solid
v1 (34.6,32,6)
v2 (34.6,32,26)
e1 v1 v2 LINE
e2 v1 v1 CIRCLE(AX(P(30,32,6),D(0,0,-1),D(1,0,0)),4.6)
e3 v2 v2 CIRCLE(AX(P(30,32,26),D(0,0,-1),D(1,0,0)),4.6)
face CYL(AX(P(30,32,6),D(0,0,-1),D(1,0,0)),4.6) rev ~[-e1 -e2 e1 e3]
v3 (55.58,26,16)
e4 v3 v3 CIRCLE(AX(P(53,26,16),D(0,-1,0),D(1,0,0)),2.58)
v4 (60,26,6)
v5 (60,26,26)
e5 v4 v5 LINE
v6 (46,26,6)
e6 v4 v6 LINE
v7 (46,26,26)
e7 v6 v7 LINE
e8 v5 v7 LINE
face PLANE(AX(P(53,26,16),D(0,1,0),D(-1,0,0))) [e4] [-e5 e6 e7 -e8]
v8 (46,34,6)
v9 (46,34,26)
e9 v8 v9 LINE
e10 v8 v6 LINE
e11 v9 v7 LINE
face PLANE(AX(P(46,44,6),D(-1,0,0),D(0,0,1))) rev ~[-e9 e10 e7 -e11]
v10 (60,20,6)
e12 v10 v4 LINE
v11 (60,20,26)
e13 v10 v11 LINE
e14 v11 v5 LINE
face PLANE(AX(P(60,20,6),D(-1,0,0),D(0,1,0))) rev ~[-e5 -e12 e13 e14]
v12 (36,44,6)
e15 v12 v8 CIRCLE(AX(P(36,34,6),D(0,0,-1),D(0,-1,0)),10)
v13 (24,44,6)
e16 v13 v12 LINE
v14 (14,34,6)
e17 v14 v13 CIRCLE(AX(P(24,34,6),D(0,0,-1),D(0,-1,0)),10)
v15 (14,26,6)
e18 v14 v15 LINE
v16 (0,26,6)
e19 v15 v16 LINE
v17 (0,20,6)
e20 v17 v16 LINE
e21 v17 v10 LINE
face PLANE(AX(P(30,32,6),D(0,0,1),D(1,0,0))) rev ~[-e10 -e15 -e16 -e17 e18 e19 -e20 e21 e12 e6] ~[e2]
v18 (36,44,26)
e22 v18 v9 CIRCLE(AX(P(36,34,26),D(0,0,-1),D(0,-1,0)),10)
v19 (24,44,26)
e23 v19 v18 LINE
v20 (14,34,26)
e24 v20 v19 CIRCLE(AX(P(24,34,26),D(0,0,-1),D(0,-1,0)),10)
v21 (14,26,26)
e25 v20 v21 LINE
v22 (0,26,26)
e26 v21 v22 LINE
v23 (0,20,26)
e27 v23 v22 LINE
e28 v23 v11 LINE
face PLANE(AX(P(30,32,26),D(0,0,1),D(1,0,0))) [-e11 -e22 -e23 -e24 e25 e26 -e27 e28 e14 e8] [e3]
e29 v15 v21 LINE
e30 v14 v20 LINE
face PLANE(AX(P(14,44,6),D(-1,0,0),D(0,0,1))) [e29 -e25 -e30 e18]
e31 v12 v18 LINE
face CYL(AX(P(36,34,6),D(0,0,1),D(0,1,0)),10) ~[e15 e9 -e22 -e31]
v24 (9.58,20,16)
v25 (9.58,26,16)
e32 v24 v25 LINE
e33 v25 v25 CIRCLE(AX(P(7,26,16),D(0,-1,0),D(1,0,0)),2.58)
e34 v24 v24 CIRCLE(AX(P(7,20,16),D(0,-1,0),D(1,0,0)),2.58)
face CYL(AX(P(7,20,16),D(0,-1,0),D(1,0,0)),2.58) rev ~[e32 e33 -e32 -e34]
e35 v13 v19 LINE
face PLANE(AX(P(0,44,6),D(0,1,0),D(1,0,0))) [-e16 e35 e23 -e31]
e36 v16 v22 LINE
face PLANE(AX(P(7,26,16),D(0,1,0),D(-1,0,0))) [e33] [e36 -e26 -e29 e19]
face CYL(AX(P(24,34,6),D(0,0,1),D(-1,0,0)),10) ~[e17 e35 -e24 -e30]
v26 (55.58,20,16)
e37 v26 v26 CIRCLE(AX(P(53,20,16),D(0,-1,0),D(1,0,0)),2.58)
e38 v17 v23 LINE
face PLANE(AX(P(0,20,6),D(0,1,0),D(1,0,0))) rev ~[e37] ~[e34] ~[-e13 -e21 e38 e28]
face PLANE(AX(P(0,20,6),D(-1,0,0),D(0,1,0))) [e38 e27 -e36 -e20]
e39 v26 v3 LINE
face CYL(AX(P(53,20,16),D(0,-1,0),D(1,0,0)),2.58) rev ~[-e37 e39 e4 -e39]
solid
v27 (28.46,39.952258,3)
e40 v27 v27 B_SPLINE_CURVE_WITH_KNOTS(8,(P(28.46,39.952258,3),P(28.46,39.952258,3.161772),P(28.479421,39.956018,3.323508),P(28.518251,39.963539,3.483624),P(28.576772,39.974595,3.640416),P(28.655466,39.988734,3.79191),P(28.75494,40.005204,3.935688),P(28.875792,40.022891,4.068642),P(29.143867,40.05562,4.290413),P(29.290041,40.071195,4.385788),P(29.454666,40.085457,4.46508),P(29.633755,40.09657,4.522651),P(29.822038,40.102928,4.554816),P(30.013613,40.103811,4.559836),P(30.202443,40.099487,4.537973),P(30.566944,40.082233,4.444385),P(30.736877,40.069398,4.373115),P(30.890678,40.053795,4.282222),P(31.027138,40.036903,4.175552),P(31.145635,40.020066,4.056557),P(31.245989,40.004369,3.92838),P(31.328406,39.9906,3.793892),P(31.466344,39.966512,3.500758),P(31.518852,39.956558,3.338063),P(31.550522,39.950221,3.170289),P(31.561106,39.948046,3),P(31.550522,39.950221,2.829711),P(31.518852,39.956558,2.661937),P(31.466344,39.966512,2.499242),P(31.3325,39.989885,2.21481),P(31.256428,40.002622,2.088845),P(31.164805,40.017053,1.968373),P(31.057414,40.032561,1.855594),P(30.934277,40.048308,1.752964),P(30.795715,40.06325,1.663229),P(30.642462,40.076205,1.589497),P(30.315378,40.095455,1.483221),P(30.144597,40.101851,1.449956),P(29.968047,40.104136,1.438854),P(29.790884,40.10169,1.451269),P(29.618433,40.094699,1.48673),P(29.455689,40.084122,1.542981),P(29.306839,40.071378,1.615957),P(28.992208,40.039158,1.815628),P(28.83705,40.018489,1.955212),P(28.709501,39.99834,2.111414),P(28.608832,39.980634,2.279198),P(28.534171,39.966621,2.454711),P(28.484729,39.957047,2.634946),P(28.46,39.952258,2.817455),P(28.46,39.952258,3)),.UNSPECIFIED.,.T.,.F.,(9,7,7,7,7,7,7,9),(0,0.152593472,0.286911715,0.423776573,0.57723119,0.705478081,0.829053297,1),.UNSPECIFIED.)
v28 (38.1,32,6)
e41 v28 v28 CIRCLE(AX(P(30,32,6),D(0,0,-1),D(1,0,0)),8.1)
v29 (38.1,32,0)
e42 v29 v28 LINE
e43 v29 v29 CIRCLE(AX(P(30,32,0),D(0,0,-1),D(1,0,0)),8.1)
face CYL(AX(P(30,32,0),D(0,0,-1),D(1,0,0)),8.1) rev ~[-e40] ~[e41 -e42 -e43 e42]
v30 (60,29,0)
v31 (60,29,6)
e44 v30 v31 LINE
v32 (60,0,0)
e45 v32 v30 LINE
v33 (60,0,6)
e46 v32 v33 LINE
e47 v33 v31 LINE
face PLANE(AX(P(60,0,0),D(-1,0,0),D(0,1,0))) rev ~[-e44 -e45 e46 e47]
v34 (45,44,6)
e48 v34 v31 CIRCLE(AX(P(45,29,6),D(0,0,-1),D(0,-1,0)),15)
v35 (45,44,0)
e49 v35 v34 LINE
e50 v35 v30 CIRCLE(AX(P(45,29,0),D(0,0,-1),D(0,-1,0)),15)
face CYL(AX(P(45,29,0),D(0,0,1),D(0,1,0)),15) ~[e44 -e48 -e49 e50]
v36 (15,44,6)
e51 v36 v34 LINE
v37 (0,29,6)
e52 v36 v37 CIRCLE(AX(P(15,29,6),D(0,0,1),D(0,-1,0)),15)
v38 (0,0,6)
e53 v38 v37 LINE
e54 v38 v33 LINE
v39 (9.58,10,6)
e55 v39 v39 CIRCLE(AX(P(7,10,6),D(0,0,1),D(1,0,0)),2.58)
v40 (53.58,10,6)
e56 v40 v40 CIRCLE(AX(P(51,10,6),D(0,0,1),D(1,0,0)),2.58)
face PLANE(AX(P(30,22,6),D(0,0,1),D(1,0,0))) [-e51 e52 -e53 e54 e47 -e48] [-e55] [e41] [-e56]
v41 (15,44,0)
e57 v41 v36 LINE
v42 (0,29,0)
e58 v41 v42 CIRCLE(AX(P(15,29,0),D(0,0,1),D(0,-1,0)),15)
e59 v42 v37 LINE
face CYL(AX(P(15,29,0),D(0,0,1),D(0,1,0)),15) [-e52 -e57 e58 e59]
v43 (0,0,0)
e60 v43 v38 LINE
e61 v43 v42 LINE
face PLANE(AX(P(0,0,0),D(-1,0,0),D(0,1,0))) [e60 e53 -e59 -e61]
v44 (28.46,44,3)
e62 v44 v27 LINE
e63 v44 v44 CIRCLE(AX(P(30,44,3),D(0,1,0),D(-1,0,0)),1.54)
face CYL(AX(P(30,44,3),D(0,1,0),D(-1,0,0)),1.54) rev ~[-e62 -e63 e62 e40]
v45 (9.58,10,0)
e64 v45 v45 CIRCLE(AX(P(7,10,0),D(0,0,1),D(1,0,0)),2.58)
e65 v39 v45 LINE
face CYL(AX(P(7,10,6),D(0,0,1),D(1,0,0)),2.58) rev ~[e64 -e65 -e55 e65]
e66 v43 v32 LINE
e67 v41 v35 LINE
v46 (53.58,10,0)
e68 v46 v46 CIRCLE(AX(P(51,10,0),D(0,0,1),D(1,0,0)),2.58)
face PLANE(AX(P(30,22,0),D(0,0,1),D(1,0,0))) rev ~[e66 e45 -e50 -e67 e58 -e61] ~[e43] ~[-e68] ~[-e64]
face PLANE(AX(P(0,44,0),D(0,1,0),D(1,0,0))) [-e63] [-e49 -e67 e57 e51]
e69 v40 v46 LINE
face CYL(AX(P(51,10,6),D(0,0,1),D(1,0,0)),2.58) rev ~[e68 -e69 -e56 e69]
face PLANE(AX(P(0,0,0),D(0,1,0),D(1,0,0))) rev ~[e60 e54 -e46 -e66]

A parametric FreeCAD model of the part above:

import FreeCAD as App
import Part
import Sketcher

V = App.Vector
Q = App.Units.Quantity


def edges_at(feature, points):
    """Names of the edges that pass closest to the given points."""
    edges = feature.Shape.Edges
    near = lambda p: min(range(len(edges)), key=lambda i: edges[i].distToShape(Part.Vertex(*p))[0])
    return sorted({f"Edge{near(p) + 1}" for p in points})

doc = App.newDocument("Part")
params = doc.addObject("Spreadsheet::Sheet", "Params")
for row, (alias, value) in enumerate([
    ("sketch1_width", "60 mm"),
    ("sketch1_height", "24 mm"),
    ("pad1_length", "20 mm"),
    ("sketch2_diameter", "9.2 mm"),
    ("sketch3_width", "14 mm"),
    ("sketch3_height", "20 mm"),
    ("pocket2_length", "18 mm"),
    ("sketch4_diameter", "5.16 mm"),
    ("pocket3_length", "6 mm"),
    ("fillet_radius", "10 mm"),
    ("fillet2_radius", "10 mm"),
    ("sketch5_width", "60 mm"),
    ("sketch5_height", "44 mm"),
    ("pad2_length", "6 mm"),
    ("sketch6_diameter", "16.2 mm"),
    ("pocket4_length", "9 mm"),
    ("sketch7_diameter", "5.16 mm"),
    ("pocket5_length", "6 mm"),
    ("sketch8_diameter", "3.08 mm"),
    ("pocket6_length", "5 mm"),
    ("fillet3_radius", "15 mm"),
    ("fillet4_radius", "15 mm"),
], start=1):
    params.set(f"A{row}", alias)
    params.set(f"B{row}", "=" + value)
    params.setAlias(f"B{row}", alias)

body = doc.addObject("PartDesign::Body", "Body")

# Sketch on XY plane
sketch1 = doc.addObject("Sketcher::SketchObject", "Sketch")
body.addObject(sketch1)
sketch1.AttachmentSupport = (doc.XY_Plane, [""])
sketch1.MapMode = "FlatFace"
sketch1.AttachmentOffset = App.Placement(V(0, 0, 6), App.Rotation())
sketch1.addGeometry([
    Part.LineSegment(V(0, 44, 0), V(0, 20, 0)),
    Part.LineSegment(V(0, 20, 0), V(60, 20, 0)),
    Part.LineSegment(V(60, 20, 0), V(60, 44, 0)),
    Part.LineSegment(V(60, 44, 0), V(0, 44, 0)),
], False)
sketch1.addConstraint([
    Sketcher.Constraint("Coincident", 0, 2, 1, 1),
    Sketcher.Constraint("Coincident", 1, 2, 2, 1),
    Sketcher.Constraint("Coincident", 2, 2, 3, 1),
    Sketcher.Constraint("Coincident", 3, 2, 0, 1),
    Sketcher.Constraint("Vertical", 0),
    Sketcher.Constraint("Horizontal", 1),
    Sketcher.Constraint("Vertical", 2),
    Sketcher.Constraint("Horizontal", 3),
    Sketcher.Constraint("PointOnObject", 0, 2, -2),
    Sketcher.Constraint("DistanceX", 1, 1, 1, 2, Q("60 mm")),
    Sketcher.Constraint("DistanceY", 0, 2, 0, 1, Q("24 mm")),
    Sketcher.Constraint("DistanceY", -1, 1, 0, 2, Q("20 mm")),
])
sketch1.setExpression("Constraints[9]", "Params.sketch1_width")
sketch1.setExpression("Constraints[10]", "Params.sketch1_height")
pad1 = doc.addObject("PartDesign::Pad", "Pad")
body.addObject(pad1)
pad1.Profile = sketch1
pad1.setExpression("Length", "Params.pad1_length")

# Sketch on XY plane
sketch2 = doc.addObject("Sketcher::SketchObject", "Sketch001")
body.addObject(sketch2)
sketch2.AttachmentSupport = (doc.XY_Plane, [""])
sketch2.MapMode = "FlatFace"
sketch2.AttachmentOffset = App.Placement(V(0, 0, 6), App.Rotation())
sketch2.addGeometry(Part.Circle(V(30, 32, 0), V(0, 0, 1), 4.6), False)
sketch2.addConstraint([
    Sketcher.Constraint("Diameter", 0, Q("9.2 mm")),
    Sketcher.Constraint("DistanceX", -1, 1, 0, 3, Q("30 mm")),
    Sketcher.Constraint("DistanceY", -1, 1, 0, 3, Q("32 mm")),
])
sketch2.setExpression("Constraints[0]", "Params.sketch2_diameter")
pocket1 = doc.addObject("PartDesign::Pocket", "Pocket")
body.addObject(pocket1)
pocket1.Profile = sketch2
pocket1.Type = "ThroughAll"
pocket1.Reversed = True

# Sketch on XZ plane
sketch3 = doc.addObject("Sketcher::SketchObject", "Sketch002")
body.addObject(sketch3)
sketch3.AttachmentSupport = (doc.XZ_Plane, [""])
sketch3.MapMode = "FlatFace"
sketch3.AttachmentOffset = App.Placement(V(0, 0, -44), App.Rotation())
sketch3.addGeometry([
    Part.LineSegment(V(60, 26, 0), V(60, 6, 0)),  # 0
    Part.LineSegment(V(60, 6, 0), V(46, 6, 0)),  # 1
    Part.LineSegment(V(46, 6, 0), V(46, 26, 0)),  # 2
    Part.LineSegment(V(46, 26, 0), V(60, 26, 0)),  # 3
    Part.LineSegment(V(14, 26, 0), V(14, 6, 0)),  # 4
    Part.LineSegment(V(14, 6, 0), V(0, 6, 0)),  # 5
    Part.LineSegment(V(0, 6, 0), V(0, 26, 0)),  # 6
    Part.LineSegment(V(0, 26, 0), V(14, 26, 0)),  # 7
], False)
sketch3.addConstraint([
    Sketcher.Constraint("Coincident", 0, 2, 1, 1),
    Sketcher.Constraint("Coincident", 1, 2, 2, 1),
    Sketcher.Constraint("Coincident", 2, 2, 3, 1),
    Sketcher.Constraint("Coincident", 3, 2, 0, 1),
    Sketcher.Constraint("Coincident", 4, 2, 5, 1),
    Sketcher.Constraint("Coincident", 5, 2, 6, 1),
    Sketcher.Constraint("Coincident", 6, 2, 7, 1),
    Sketcher.Constraint("Coincident", 7, 2, 4, 1),
    Sketcher.Constraint("Vertical", 0),
    Sketcher.Constraint("Horizontal", 1),
    Sketcher.Constraint("Vertical", 2),
    Sketcher.Constraint("Horizontal", 3),
    Sketcher.Constraint("Vertical", 4),
    Sketcher.Constraint("Horizontal", 5),
    Sketcher.Constraint("Vertical", 6),
    Sketcher.Constraint("Horizontal", 7),
    Sketcher.Constraint("PointOnObject", 5, 2, -2),
    Sketcher.Constraint("Horizontal", 1, 2, 4, 2),
    Sketcher.Constraint("Horizontal", 3, 2, 6, 2),
    Sketcher.Constraint("Equal", 3, 5),
    Sketcher.Constraint("DistanceX", 1, 2, 1, 1, Q("14 mm")),
    Sketcher.Constraint("DistanceY", 0, 2, 0, 1, Q("20 mm")),
    Sketcher.Constraint("DistanceX", -1, 1, 0, 2, Q("60 mm")),
    Sketcher.Constraint("DistanceY", -1, 1, 0, 2, Q("6 mm")),
])
sketch3.setExpression("Constraints[20]", "Params.sketch3_width")
sketch3.setExpression("Constraints[21]", "Params.sketch3_height")
pocket2 = doc.addObject("PartDesign::Pocket", "Pocket001")
body.addObject(pocket2)
pocket2.Profile = sketch3
pocket2.setExpression("Length", "Params.pocket2_length")
pocket2.Reversed = True

# Sketch on XZ plane
sketch4 = doc.addObject("Sketcher::SketchObject", "Sketch003")
body.addObject(sketch4)
sketch4.AttachmentSupport = (doc.XZ_Plane, [""])
sketch4.MapMode = "FlatFace"
sketch4.AttachmentOffset = App.Placement(V(0, 0, -20), App.Rotation())
sketch4.addGeometry([
    Part.Circle(V(7, 16, 0), V(0, 0, 1), 2.6),
    Part.Circle(V(53, 16, 0), V(0, 0, 1), 2.6),
], False)
sketch4.addConstraint([
    Sketcher.Constraint("Equal", 0, 1),
    Sketcher.Constraint("Horizontal", 0, 3, 1, 3),
    Sketcher.Constraint("Diameter", 0, Q("5.16 mm")),
    Sketcher.Constraint("DistanceX", -1, 1, 0, 3, Q("7 mm")),
    Sketcher.Constraint("DistanceY", -1, 1, 0, 3, Q("16 mm")),
    Sketcher.Constraint("DistanceX", -1, 1, 1, 3, Q("53 mm")),
])
sketch4.setExpression("Constraints[2]", "Params.sketch4_diameter")
pocket3 = doc.addObject("PartDesign::Pocket", "Pocket002")
body.addObject(pocket3)
pocket3.Profile = sketch4
pocket3.setExpression("Length", "Params.pocket3_length")
doc.recompute()

fillet = doc.addObject("PartDesign::Fillet", "Fillet")
body.addObject(fillet)
fillet.Base = (pocket3, edges_at(pocket3, [(14, 44, 16)]))
fillet.setExpression("Radius", "Params.fillet_radius")
doc.recompute()

fillet2 = doc.addObject("PartDesign::Fillet", "Fillet001")
body.addObject(fillet2)
fillet2.Base = (fillet, edges_at(fillet, [(46, 44, 16)]))
fillet2.setExpression("Radius", "Params.fillet2_radius")
body2 = doc.addObject("PartDesign::Body", "Body001")

# Sketch on XY plane
sketch5 = doc.addObject("Sketcher::SketchObject", "Sketch004")
body2.addObject(sketch5)
sketch5.AttachmentSupport = (doc.getObject("XY_Plane001"), [""])
sketch5.MapMode = "FlatFace"
sketch5.addGeometry([
    Part.LineSegment(V(0, 44, 0), V(0, 0, 0)),
    Part.LineSegment(V(0, 0, 0), V(60, 0, 0)),
    Part.LineSegment(V(60, 0, 0), V(60, 44, 0)),
    Part.LineSegment(V(60, 44, 0), V(0, 44, 0)),
], False)
sketch5.addConstraint([
    Sketcher.Constraint("Coincident", 0, 2, 1, 1),
    Sketcher.Constraint("Coincident", 1, 2, 2, 1),
    Sketcher.Constraint("Coincident", 2, 2, 3, 1),
    Sketcher.Constraint("Coincident", 3, 2, 0, 1),
    Sketcher.Constraint("Vertical", 0),
    Sketcher.Constraint("Horizontal", 1),
    Sketcher.Constraint("Vertical", 2),
    Sketcher.Constraint("Horizontal", 3),
    Sketcher.Constraint("Coincident", 0, 2, -1, 1),
    Sketcher.Constraint("DistanceX", 1, 1, 1, 2, Q("60 mm")),
    Sketcher.Constraint("DistanceY", 0, 2, 0, 1, Q("44 mm")),
])
sketch5.setExpression("Constraints[9]", "Params.sketch5_width")
sketch5.setExpression("Constraints[10]", "Params.sketch5_height")
pad2 = doc.addObject("PartDesign::Pad", "Pad001")
body2.addObject(pad2)
pad2.Profile = sketch5
pad2.setExpression("Length", "Params.pad2_length")

# Sketch on XY plane
sketch6 = doc.addObject("Sketcher::SketchObject", "Sketch005")
body2.addObject(sketch6)
sketch6.AttachmentSupport = (doc.getObject("XY_Plane001"), [""])
sketch6.MapMode = "FlatFace"
sketch6.addGeometry(Part.Circle(V(30, 32, 0), V(0, 0, 1), 8), False)
sketch6.addConstraint([
    Sketcher.Constraint("Diameter", 0, Q("16.2 mm")),
    Sketcher.Constraint("DistanceX", -1, 1, 0, 3, Q("30 mm")),
    Sketcher.Constraint("DistanceY", -1, 1, 0, 3, Q("32 mm")),
])
sketch6.setExpression("Constraints[0]", "Params.sketch6_diameter")
pocket4 = doc.addObject("PartDesign::Pocket", "Pocket003")
body2.addObject(pocket4)
pocket4.Profile = sketch6
pocket4.setExpression("Length", "Params.pocket4_length")
pocket4.Reversed = True

# Sketch on XY plane
sketch7 = doc.addObject("Sketcher::SketchObject", "Sketch006")
body2.addObject(sketch7)
sketch7.AttachmentSupport = (doc.getObject("XY_Plane001"), [""])
sketch7.MapMode = "FlatFace"
sketch7.AttachmentOffset = App.Placement(V(0, 0, 6), App.Rotation())
sketch7.addGeometry([
    Part.Circle(V(7, 10, 0), V(0, 0, 1), 2.6),
    Part.Circle(V(51, 10, 0), V(0, 0, 1), 2.6),
], False)
sketch7.addConstraint([
    Sketcher.Constraint("Equal", 0, 1),
    Sketcher.Constraint("Horizontal", 0, 3, 1, 3),
    Sketcher.Constraint("Diameter", 0, Q("5.16 mm")),
    Sketcher.Constraint("DistanceX", -1, 1, 0, 3, Q("7 mm")),
    Sketcher.Constraint("DistanceY", -1, 1, 0, 3, Q("10 mm")),
    Sketcher.Constraint("DistanceX", -1, 1, 1, 3, Q("51 mm")),
])
sketch7.setExpression("Constraints[2]", "Params.sketch7_diameter")
pocket5 = doc.addObject("PartDesign::Pocket", "Pocket004")
body2.addObject(pocket5)
pocket5.Profile = sketch7
pocket5.setExpression("Length", "Params.pocket5_length")

# Sketch on XZ plane
sketch8 = doc.addObject("Sketcher::SketchObject", "Sketch007")
body2.addObject(sketch8)
sketch8.AttachmentSupport = (doc.getObject("XZ_Plane001"), [""])
sketch8.MapMode = "FlatFace"
sketch8.AttachmentOffset = App.Placement(V(0, 0, -44), App.Rotation())
sketch8.addGeometry(Part.Circle(V(30, 3, 0), V(0, 0, 1), 1.5), False)
sketch8.addConstraint([
    Sketcher.Constraint("Diameter", 0, Q("3.08 mm")),
    Sketcher.Constraint("DistanceX", -1, 1, 0, 3, Q("30 mm")),
    Sketcher.Constraint("DistanceY", -1, 1, 0, 3, Q("3 mm")),
])
sketch8.setExpression("Constraints[0]", "Params.sketch8_diameter")
pocket6 = doc.addObject("PartDesign::Pocket", "Pocket005")
body2.addObject(pocket6)
pocket6.Profile = sketch8
pocket6.setExpression("Length", "Params.pocket6_length")
pocket6.Reversed = True
doc.recompute()

fillet3 = doc.addObject("PartDesign::Fillet", "Fillet002")
body2.addObject(fillet3)
fillet3.Base = (pocket6, edges_at(pocket6, [(60, 44, 3)]))
fillet3.setExpression("Radius", "Params.fillet3_radius")
doc.recompute()

fillet4 = doc.addObject("PartDesign::Fillet", "Fillet003")
body2.addObject(fillet4)
fillet4.Base = (fillet3, edges_at(fillet3, [(0, 44, 3)]))
fillet4.setExpression("Radius", "Params.fillet4_radius")

doc.recompute()
